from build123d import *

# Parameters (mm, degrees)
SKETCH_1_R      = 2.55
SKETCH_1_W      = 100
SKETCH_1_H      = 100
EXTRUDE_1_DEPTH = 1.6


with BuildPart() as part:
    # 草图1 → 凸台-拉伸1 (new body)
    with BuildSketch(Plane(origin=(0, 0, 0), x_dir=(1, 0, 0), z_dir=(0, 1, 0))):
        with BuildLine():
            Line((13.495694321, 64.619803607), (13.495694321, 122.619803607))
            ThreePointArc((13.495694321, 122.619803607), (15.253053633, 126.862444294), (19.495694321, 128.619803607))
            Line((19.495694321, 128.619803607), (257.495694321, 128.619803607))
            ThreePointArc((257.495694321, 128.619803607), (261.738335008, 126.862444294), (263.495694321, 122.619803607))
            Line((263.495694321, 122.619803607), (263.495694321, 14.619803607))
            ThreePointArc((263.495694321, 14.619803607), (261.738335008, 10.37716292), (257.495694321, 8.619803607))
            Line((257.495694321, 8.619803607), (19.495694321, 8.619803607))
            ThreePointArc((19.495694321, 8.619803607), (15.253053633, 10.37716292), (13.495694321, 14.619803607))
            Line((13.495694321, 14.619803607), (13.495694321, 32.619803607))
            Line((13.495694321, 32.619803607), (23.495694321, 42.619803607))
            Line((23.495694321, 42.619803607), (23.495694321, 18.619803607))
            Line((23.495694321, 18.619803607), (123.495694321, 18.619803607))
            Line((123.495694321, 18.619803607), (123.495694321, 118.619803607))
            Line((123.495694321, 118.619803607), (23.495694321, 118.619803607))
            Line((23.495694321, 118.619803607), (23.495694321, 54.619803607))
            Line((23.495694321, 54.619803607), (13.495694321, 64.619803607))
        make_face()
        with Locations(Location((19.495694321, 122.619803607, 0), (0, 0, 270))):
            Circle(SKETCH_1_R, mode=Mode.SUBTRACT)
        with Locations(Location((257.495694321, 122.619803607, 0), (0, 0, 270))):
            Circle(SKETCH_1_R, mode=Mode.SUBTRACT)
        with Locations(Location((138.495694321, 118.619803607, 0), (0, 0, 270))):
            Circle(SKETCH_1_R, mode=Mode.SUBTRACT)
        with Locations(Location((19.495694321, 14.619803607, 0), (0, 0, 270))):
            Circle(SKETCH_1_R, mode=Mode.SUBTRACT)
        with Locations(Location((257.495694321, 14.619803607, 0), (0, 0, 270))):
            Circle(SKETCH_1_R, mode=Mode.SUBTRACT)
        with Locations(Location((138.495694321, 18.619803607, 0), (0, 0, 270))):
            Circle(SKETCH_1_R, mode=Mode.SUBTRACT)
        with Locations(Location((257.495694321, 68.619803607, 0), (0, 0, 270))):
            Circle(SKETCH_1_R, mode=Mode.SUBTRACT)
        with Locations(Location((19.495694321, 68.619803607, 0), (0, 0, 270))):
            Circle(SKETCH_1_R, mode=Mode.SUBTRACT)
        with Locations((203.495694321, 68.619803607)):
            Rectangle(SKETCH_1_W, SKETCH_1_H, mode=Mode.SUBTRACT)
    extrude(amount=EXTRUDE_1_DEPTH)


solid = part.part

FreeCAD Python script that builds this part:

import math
import FreeCAD as App
import Part
import Sketcher

V = App.Vector
Q = App.Units.Quantity


def add_polygon(sketch, points):
    """Adds a closed chain of lines whose ends are joined by coincident constraints."""
    first, n = sketch.GeometryCount, len(points)
    for a, b in zip(points, points[1:] + points[:1]):
        sketch.addGeometry(Part.LineSegment(App.Vector(*a, 0), App.Vector(*b, 0)), False)
    for i in range(n):
        sketch.addConstraint(Sketcher.Constraint("Coincident", first + i, 2, first + (i + 1) % n, 1))

doc = App.newDocument("Part")
body = doc.addObject("PartDesign::Body", "Body")

sketch1 = body.newObject("Sketcher::SketchObject", "Sketch")
sketch1.AttachmentSupport = (doc.getObject("XZ_Plane"), [""])
sketch1.MapMode = "FlatFace"
sketch1.addGeometry(Part.LineSegment(V(13.5, -122.6, 0), V(13.5, -64.6, 0)), False)
sketch1.addGeometry(Part.LineSegment(V(13.5, -64.6, 0), V(23.5, -54.6, 0)), False)
sketch1.addGeometry(Part.LineSegment(V(23.5, -54.6, 0), V(23.5, -118.6, 0)), False)
sketch1.addGeometry(Part.LineSegment(V(23.5, -118.6, 0), V(123.5, -118.6, 0)), False)
sketch1.addGeometry(Part.LineSegment(V(123.5, -118.6, 0), V(123.5, -18.6, 0)), False)
sketch1.addGeometry(Part.LineSegment(V(123.5, -18.6, 0), V(23.5, -18.6, 0)), False)
sketch1.addGeometry(Part.LineSegment(V(23.5, -18.6, 0), V(23.5, -42.6, 0)), False)
sketch1.addGeometry(Part.LineSegment(V(23.5, -42.6, 0), V(13.5, -32.6, 0)), False)
sketch1.addGeometry(Part.LineSegment(V(13.5, -32.6, 0), V(13.5, -14.6, 0)), False)
sketch1.addGeometry(Part.ArcOfCircle(Part.Circle(V(19.5, -14.6, 0), V(0, 0, 1), 6), math.radians(90), math.radians(180)), False)
sketch1.addGeometry(Part.LineSegment(V(19.5, -8.6, 0), V(257.5, -8.6, 0)), False)
sketch1.addGeometry(Part.ArcOfCircle(Part.Circle(V(257.5, -14.6, 0), V(0, 0, 1), 6), math.radians(0), math.radians(90)), False)
sketch1.addGeometry(Part.LineSegment(V(263.5, -14.6, 0), V(263.5, -122.6, 0)), False)
sketch1.addGeometry(Part.ArcOfCircle(Part.Circle(V(257.5, -122.6, 0), V(0, 0, 1), 6), math.radians(-90), math.radians(0)), False)
sketch1.addGeometry(Part.LineSegment(V(257.5, -128.6, 0), V(19.5, -128.6, 0)), False)
sketch1.addGeometry(Part.ArcOfCircle(Part.Circle(V(19.5, -122.6, 0), V(0, 0, 1), 6), math.radians(180), math.radians(270)), False)
sketch1.addGeometry(Part.Circle(V(257.5, -14.6, 0), V(0, 0, 1), 2.5), False)
sketch1.addGeometry(Part.Circle(V(257.5, -68.6, 0), V(0, 0, 1), 2.5), False)
add_polygon(sketch1, [(153.5, -18.6), (153.5, -118.6), (253.5, -118.6), (253.5, -18.6)])
sketch1.addGeometry(Part.Circle(V(138.5, -18.6, 0), V(0, 0, 1), 2.5), False)
sketch1.addGeometry(Part.Circle(V(19.5, -14.6, 0), V(0, 0, 1), 2.5), False)
sketch1.addGeometry(Part.Circle(V(19.5, -68.6, 0), V(0, 0, 1), 2.5), False)
sketch1.addGeometry(Part.Circle(V(257.5, -122.6, 0), V(0, 0, 1), 2.5), False)
sketch1.addGeometry(Part.Circle(V(138.5, -118.6, 0), V(0, 0, 1), 2.5), False)
sketch1.addGeometry(Part.Circle(V(19.5, -122.6, 0), V(0, 0, 1), 2.5), False)
sketch1.addConstraint(Sketcher.Constraint("Coincident", 0, 2, 1, 1))
sketch1.addConstraint(Sketcher.Constraint("Coincident", 1, 2, 2, 1))
sketch1.addConstraint(Sketcher.Constraint("Coincident", 2, 2, 3, 1))
sketch1.addConstraint(Sketcher.Constraint("Coincident", 3, 2, 4, 1))
sketch1.addConstraint(Sketcher.Constraint("Coincident", 4, 2, 5, 1))
sketch1.addConstraint(Sketcher.Constraint("Coincident", 5, 2, 6, 1))
sketch1.addConstraint(Sketcher.Constraint("Coincident", 6, 2, 7, 1))
sketch1.addConstraint(Sketcher.Constraint("Coincident", 7, 2, 8, 1))
sketch1.addConstraint(Sketcher.Constraint("Tangent", 8, 2, 9, 2))
sketch1.addConstraint(Sketcher.Constraint("Tangent", 9, 1, 10, 1))
sketch1.addConstraint(Sketcher.Constraint("Tangent", 10, 2, 11, 2))
sketch1.addConstraint(Sketcher.Constraint("Tangent", 11, 1, 12, 1))
sketch1.addConstraint(Sketcher.Constraint("Tangent", 12, 2, 13, 2))
sketch1.addConstraint(Sketcher.Constraint("Tangent", 13, 1, 14, 1))
sketch1.addConstraint(Sketcher.Constraint("Tangent", 14, 2, 15, 2))
sketch1.addConstraint(Sketcher.Constraint("Tangent", 15, 1, 0, 1))
sketch1.addConstraint(Sketcher.Constraint("Vertical", 0))
sketch1.addConstraint(Sketcher.Constraint("Vertical", 2))
sketch1.addConstraint(Sketcher.Constraint("Horizontal", 3))
sketch1.addConstraint(Sketcher.Constraint("Vertical", 4))
sketch1.addConstraint(Sketcher.Constraint("Horizontal", 5))
sketch1.addConstraint(Sketcher.Constraint("Vertical", 6))
sketch1.addConstraint(Sketcher.Constraint("Vertical", 8))
sketch1.addConstraint(Sketcher.Constraint("Horizontal", 10))
sketch1.addConstraint(Sketcher.Constraint("Vertical", 12))
sketch1.addConstraint(Sketcher.Constraint("Horizontal", 14))
sketch1.addConstraint(Sketcher.Constraint("Vertical", 18))
sketch1.addConstraint(Sketcher.Constraint("Horizontal", 19))
sketch1.addConstraint(Sketcher.Constraint("Vertical", 20))
sketch1.addConstraint(Sketcher.Constraint("Horizontal", 21))
sketch1.addConstraint(Sketcher.Constraint("Coincident", 16, 3, 11, 3))
sketch1.addConstraint(Sketcher.Constraint("Coincident", 23, 3, 9, 3))
sketch1.addConstraint(Sketcher.Constraint("Coincident", 25, 3, 13, 3))
sketch1.addConstraint(Sketcher.Constraint("Coincident", 27, 3, 15, 3))
sketch1.addConstraint(Sketcher.Constraint("Equal", 9, 11))
sketch1.addConstraint(Sketcher.Constraint("Equal", 11, 13))
sketch1.addConstraint(Sketcher.Constraint("Equal", 13, 15))
sketch1.addConstraint(Sketcher.Constraint("Equal", 16, 17))
sketch1.addConstraint(Sketcher.Constraint("Equal", 17, 22))
sketch1.addConstraint(Sketcher.Constraint("Equal", 22, 23))
sketch1.addConstraint(Sketcher.Constraint("Equal", 23, 24))
sketch1.addConstraint(Sketcher.Constraint("Equal", 24, 25))
sketch1.addConstraint(Sketcher.Constraint("Equal", 25, 26))
sketch1.addConstraint(Sketcher.Constraint("Equal", 26, 27))
sketch1.addConstraint(Sketcher.Constraint("Perpendicular", 1, 7))
sketch1.addConstraint(Sketcher.Constraint("Horizontal", 17, 3, 24, 3))
sketch1.addConstraint(Sketcher.Constraint("Horizontal", 26, 3, 2, 2))
sketch1.addConstraint(Sketcher.Constraint("Horizontal", 22, 3, 4, 2))
sketch1.addConstraint(Sketcher.Constraint("Horizontal", 3, 2, 18, 2))
sketch1.addConstraint(Sketcher.Constraint("Horizontal", 5, 2, 20, 2))
sketch1.addConstraint(Sketcher.Constraint("Vertical", 9, 3, 15, 3))
sketch1.addConstraint(Sketcher.Constraint("Vertical", 16, 3, 17, 3))
sketch1.addConstraint(Sketcher.Constraint("Vertical", 23, 3, 24, 3))
sketch1.addConstraint(Sketcher.Constraint("Vertical", 22, 3, 26, 3))
sketch1.addConstraint(Sketcher.Constraint("Vertical", 2, 2, 5, 2))
sketch1.addConstraint(Sketcher.Constraint("Equal", 5, 19))
sketch1.addConstraint(Sketcher.Constraint("Equal", 21, 4))
sketch1.addConstraint(Sketcher.Constraint("Equal", 1, 7))
sketch1.addConstraint(Sketcher.Constraint("Radius", 9, Q("6 mm")))
sketch1.addConstraint(Sketcher.Constraint("Diameter", 16, Q("5.1 mm")))
sketch1.addConstraint(Sketcher.Constraint("DistanceX", 3, 1, 3, 2, Q("100 mm")))
sketch1.addConstraint(Sketcher.Constraint("DistanceX", 10, 1, 10, 2, Q("238 mm")))
sketch1.addConstraint(Sketcher.Constraint("DistanceY", 0, 1, 0, 2, Q("58 mm")))
sketch1.addConstraint(Sketcher.Constraint("DistanceY", 2, 2, 2, 1, Q("64 mm")))
sketch1.addConstraint(Sketcher.Constraint("DistanceY", 6, 2, 6, 1, Q("24 mm")))
sketch1.addConstraint(Sketcher.Constraint("DistanceY", 8, 1, 8, 2, Q("18 mm")))
sketch1.addConstraint(Sketcher.Constraint("DistanceY", 12, 2, 12, 1, Q("108 mm")))
sketch1.addConstraint(Sketcher.Constraint("DistanceY", 17, 3, 11, 3, Q("54 mm")))
sketch1.addConstraint(Sketcher.Constraint("DistanceX", 22, 3, 11, 3, Q("119 mm")))
sketch1.addConstraint(Sketcher.Constraint("DistanceX", 26, 3, 18, 2, Q("15 mm")))
sketch1.addConstraint(Sketcher.Constraint("DistanceX", -1, 1, 9, 3, Q("19.495694 mm")))
sketch1.addConstraint(Sketcher.Constraint("DistanceY", 9, 3, -1, 1, Q("14.619804 mm")))
pad1 = body.newObject("PartDesign::Pad", "Pad")
pad1.Profile = sketch1
pad1.Length = 1.6
pad1.Reversed = True

doc.recompute()
